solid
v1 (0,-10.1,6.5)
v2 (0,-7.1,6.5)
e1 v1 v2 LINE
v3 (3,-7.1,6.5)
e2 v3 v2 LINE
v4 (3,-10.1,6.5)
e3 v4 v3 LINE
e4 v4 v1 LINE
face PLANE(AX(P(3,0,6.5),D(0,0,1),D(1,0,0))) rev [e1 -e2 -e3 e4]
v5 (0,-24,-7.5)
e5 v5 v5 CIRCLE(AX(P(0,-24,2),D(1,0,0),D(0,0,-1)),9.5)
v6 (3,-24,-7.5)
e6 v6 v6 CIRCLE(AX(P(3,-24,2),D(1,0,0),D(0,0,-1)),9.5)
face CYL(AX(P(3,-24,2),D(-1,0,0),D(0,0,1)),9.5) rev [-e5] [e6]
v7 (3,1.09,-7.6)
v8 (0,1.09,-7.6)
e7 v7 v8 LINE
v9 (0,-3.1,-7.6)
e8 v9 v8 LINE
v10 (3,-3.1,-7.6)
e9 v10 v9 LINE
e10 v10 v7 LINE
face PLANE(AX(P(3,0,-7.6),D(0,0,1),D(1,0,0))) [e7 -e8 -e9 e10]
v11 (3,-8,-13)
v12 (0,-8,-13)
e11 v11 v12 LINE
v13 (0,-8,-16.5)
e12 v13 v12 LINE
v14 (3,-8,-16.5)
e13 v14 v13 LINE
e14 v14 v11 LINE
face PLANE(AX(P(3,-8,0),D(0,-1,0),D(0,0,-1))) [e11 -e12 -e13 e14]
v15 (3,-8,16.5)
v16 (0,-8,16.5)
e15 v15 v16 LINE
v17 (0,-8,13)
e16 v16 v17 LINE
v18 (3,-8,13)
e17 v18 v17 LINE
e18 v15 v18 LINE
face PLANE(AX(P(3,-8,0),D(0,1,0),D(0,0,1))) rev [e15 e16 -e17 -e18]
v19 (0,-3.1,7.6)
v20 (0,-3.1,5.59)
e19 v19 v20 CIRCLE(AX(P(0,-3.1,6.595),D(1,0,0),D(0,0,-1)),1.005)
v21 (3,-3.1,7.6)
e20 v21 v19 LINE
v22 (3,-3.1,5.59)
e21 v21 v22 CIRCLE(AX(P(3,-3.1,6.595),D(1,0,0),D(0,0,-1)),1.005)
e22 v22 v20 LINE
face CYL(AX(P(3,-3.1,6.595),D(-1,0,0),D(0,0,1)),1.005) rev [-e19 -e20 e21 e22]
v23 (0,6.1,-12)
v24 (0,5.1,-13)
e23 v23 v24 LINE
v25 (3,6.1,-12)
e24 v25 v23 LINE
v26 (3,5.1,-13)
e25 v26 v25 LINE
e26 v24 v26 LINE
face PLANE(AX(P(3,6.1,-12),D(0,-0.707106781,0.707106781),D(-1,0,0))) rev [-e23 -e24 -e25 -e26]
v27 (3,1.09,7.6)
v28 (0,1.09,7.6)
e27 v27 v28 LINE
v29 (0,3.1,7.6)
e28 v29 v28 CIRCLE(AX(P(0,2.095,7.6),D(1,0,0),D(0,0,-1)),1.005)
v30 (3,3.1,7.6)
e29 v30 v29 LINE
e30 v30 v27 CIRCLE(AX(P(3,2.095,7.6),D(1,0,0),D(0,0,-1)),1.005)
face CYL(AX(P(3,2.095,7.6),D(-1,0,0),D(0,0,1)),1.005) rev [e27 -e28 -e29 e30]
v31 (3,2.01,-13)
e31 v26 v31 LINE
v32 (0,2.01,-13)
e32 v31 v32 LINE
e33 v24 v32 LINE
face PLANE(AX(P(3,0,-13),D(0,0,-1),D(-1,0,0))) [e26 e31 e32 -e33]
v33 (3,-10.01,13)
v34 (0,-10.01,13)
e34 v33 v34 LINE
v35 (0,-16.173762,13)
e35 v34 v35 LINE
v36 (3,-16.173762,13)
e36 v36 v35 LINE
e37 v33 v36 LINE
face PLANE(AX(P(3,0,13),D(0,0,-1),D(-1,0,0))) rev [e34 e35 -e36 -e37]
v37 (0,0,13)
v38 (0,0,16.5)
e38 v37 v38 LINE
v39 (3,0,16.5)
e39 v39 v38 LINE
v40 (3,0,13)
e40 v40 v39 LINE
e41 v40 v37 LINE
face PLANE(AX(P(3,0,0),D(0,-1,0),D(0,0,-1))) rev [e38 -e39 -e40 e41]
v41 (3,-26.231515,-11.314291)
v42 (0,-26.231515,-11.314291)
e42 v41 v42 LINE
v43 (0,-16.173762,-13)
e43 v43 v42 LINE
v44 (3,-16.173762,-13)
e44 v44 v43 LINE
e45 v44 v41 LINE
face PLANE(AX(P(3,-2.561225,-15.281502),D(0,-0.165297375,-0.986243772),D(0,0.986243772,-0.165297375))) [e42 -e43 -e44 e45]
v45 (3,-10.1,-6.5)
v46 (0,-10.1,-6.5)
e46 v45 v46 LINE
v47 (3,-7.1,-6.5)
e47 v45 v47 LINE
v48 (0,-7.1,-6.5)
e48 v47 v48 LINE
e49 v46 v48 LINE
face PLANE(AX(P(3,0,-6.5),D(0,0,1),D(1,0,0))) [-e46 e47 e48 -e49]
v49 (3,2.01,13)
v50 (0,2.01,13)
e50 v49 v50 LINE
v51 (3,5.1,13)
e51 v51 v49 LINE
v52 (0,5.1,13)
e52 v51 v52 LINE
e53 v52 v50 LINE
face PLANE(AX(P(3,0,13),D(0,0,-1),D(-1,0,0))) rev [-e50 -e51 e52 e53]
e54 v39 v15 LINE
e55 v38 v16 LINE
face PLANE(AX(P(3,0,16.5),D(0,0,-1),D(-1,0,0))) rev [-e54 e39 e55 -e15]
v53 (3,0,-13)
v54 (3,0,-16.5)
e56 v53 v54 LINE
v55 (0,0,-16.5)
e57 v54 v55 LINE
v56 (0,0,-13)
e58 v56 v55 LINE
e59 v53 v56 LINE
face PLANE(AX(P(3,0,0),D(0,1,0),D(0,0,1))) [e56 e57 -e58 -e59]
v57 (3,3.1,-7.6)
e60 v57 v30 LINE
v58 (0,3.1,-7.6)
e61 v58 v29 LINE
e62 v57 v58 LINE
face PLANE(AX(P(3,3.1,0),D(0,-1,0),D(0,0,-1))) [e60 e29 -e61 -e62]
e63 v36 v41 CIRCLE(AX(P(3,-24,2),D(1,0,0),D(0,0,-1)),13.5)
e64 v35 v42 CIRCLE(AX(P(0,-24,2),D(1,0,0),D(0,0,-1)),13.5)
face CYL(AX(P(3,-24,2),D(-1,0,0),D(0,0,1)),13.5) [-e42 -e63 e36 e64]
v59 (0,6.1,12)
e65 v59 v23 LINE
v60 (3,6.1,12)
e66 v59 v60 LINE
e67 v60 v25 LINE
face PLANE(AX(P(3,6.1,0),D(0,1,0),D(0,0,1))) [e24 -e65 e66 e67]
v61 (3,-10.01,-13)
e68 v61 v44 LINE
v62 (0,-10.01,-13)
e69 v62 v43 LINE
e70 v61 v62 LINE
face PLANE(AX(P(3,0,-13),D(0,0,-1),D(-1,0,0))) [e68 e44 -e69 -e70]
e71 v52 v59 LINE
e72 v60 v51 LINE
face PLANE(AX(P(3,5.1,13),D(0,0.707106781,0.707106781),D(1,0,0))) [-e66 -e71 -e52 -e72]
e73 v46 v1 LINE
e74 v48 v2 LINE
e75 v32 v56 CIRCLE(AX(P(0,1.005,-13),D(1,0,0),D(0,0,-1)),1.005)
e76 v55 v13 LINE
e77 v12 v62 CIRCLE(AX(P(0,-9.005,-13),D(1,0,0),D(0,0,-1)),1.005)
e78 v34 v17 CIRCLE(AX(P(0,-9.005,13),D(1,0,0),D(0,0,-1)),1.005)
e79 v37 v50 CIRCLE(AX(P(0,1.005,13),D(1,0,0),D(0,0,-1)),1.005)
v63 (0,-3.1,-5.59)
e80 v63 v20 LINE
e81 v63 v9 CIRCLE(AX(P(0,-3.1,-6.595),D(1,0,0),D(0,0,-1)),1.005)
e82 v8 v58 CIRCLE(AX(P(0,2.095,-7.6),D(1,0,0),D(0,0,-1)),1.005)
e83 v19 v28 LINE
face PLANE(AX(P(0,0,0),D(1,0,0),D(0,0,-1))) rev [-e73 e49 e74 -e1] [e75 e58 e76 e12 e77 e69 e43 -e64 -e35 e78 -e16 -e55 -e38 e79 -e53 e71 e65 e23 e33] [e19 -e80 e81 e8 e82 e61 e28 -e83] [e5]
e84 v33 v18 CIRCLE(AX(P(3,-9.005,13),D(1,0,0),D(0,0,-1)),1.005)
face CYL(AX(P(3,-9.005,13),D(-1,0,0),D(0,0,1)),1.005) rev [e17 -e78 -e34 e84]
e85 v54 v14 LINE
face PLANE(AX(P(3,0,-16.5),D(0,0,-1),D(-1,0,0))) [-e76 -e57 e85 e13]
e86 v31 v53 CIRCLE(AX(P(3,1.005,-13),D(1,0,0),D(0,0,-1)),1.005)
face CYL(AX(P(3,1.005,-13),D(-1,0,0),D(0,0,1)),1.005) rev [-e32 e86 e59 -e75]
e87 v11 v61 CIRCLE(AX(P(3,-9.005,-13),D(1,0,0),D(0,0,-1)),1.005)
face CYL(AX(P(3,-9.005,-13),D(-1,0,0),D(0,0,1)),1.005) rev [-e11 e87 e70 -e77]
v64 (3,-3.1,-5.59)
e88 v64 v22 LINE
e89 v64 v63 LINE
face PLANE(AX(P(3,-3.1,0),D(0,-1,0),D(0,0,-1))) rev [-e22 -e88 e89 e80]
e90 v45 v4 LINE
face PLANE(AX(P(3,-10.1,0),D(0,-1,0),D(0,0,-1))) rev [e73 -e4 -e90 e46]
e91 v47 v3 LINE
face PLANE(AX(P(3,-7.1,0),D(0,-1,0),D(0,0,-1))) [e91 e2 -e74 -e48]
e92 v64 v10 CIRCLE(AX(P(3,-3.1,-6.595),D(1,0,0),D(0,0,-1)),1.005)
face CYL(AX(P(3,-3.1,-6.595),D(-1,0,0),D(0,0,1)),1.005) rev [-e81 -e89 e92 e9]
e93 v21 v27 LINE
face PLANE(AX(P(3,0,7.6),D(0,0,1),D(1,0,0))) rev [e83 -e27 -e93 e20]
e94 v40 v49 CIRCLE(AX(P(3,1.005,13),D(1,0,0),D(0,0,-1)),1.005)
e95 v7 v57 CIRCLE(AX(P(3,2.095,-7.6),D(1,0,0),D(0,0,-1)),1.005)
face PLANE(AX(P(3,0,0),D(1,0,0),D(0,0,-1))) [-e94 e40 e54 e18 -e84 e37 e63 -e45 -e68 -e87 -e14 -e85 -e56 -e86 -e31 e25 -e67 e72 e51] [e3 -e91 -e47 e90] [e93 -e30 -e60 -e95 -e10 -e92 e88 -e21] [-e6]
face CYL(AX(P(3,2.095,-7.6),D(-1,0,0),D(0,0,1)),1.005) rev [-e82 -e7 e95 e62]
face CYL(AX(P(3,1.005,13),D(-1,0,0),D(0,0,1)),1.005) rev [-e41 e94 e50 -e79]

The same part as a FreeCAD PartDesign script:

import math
import FreeCAD as App
import Part
import Sketcher

V = App.Vector
Q = App.Units.Quantity


def edges_at(feature, points):
    """Names of the edges that pass closest to the given points."""
    edges = feature.Shape.Edges
    near = lambda p: min(range(len(edges)), key=lambda i: edges[i].distToShape(Part.Vertex(*p))[0])
    return sorted({f"Edge{near(p) + 1}" for p in points})


def add_polygon(sketch, points):
    """Adds a closed chain of lines whose ends are joined by coincident constraints."""
    first, n = sketch.GeometryCount, len(points)
    for a, b in zip(points, points[1:] + points[:1]):
        sketch.addGeometry(Part.LineSegment(App.Vector(*a, 0), App.Vector(*b, 0)), False)
    for i in range(n):
        sketch.addConstraint(Sketcher.Constraint("Coincident", first + i, 2, first + (i + 1) % n, 1))

doc = App.newDocument("Part")
body = doc.addObject("PartDesign::Body", "Body")

sketch1 = doc.addObject("Sketcher::SketchObject", "Sketch")
body.addObject(sketch1)
sketch1.AttachmentSupport = (doc.YZ_Plane, [""])
sketch1.MapMode = "FlatFace"
sketch1.addGeometry(Part.LineSegment(V(6.1, -13, 0), V(6.1, 13, 0)), False)
sketch1.addGeometry(Part.LineSegment(V(6.1, 13, 0), V(2, 13, 0)), False)
sketch1.addGeometry(Part.ArcOfCircle(Part.Circle(V(1, 13, 0), V(0, 0, 1), 1), math.radians(-90), math.radians(0)), False)
sketch1.addGeometry(Part.ArcOfCircle(Part.Circle(V(1, 13, 0), V(0, 0, 1), 1), math.radians(180), math.radians(270)), False)
sketch1.addGeometry(Part.LineSegment(V(0, 13, 0), V(0, 16.5, 0)), False)
sketch1.addGeometry(Part.LineSegment(V(0, 16.5, 0), V(-8, 16.5, 0)), False)
sketch1.addGeometry(Part.LineSegment(V(-8, 16.5, 0), V(-8, 13, 0)), False)
sketch1.addGeometry(Part.ArcOfCircle(Part.Circle(V(-9, 13, 0), V(0, 0, 1), 1), math.radians(-90), math.radians(0)), False)
sketch1.addGeometry(Part.ArcOfCircle(Part.Circle(V(-9, 13, 0), V(0, 0, 1), 1), math.radians(180), math.radians(270)), False)
sketch1.addGeometry(Part.LineSegment(V(-10, 13, 0), V(-16.2, 13, 0)), False)
sketch1.addGeometry(Part.ArcOfCircle(Part.Circle(V(-24, 2, 0), V(0, 0, 1), 13.5), math.radians(55), math.radians(260)), False)
sketch1.addGeometry(Part.LineSegment(V(-26.2, -11.3, 0), V(-16.2, -13, 0)), False)
sketch1.addGeometry(Part.LineSegment(V(-16.2, -13, 0), V(-10, -13, 0)), False)
sketch1.addGeometry(Part.ArcOfCircle(Part.Circle(V(-9, -13, 0), V(0, 0, 1), 1), math.radians(0), math.radians(180)), False)
sketch1.addGeometry(Part.LineSegment(V(-8, -13, 0), V(-8, -16.5, 0)), False)
sketch1.addGeometry(Part.LineSegment(V(-8, -16.5, 0), V(0, -16.5, 0)), False)
sketch1.addGeometry(Part.LineSegment(V(0, -16.5, 0), V(0, -13, 0)), False)
sketch1.addGeometry(Part.ArcOfCircle(Part.Circle(V(1, -13, 0), V(0, 0, 1), 1), math.radians(0), math.radians(180)), False)
sketch1.addGeometry(Part.LineSegment(V(2, -13, 0), V(6.1, -13, 0)), False)
sketch1.addGeometry(Part.Circle(V(-24, 2, 0), V(0, 0, 1), 9.5), False)
add_polygon(sketch1, [(-10.1, -6.5), (-10.1, 6.5), (-7.1, 6.5), (-7.1, -6.5)])
sketch1.addGeometry(Part.ArcOfCircle(Part.Circle(V(-3.1, -6.6, 0), V(0, 0, 1), 1), math.radians(90), math.radians(270)), False)
sketch1.addGeometry(Part.LineSegment(V(-3.1, -5.6, 0), V(-3.1, 5.6, 0)), False)
sketch1.addGeometry(Part.ArcOfCircle(Part.Circle(V(-3.1, 6.6, 0), V(0, 0, 1), 1), math.radians(90), math.radians(270)), False)
sketch1.addGeometry(Part.LineSegment(V(-3.1, 7.6, 0), V(1.1, 7.6, 0)), False)
sketch1.addGeometry(Part.ArcOfCircle(Part.Circle(V(2.1, 7.6, 0), V(0, 0, 1), 1), math.radians(0), math.radians(180)), False)
sketch1.addGeometry(Part.LineSegment(V(3.1, 7.6, 0), V(3.1, -7.6, 0)), False)
sketch1.addGeometry(Part.ArcOfCircle(Part.Circle(V(2.1, -7.6, 0), V(0, 0, 1), 1), math.radians(-90), math.radians(0)), False)
sketch1.addGeometry(Part.ArcOfCircle(Part.Circle(V(2.1, -7.6, 0), V(0, 0, 1), 1), math.radians(180), math.radians(270)), False)
sketch1.addGeometry(Part.LineSegment(V(1.1, -7.6, 0), V(-3.1, -7.6, 0)), False)
sketch1.addConstraint([
    Sketcher.Constraint("Coincident", 0, 2, 1, 1),
    Sketcher.Constraint("Coincident", 1, 2, 2, 2),
    Sketcher.Constraint("Tangent", 2, 1, 3, 2),
    Sketcher.Constraint("Tangent", 3, 1, 4, 1),
    Sketcher.Constraint("Coincident", 4, 2, 5, 1),
    Sketcher.Constraint("Coincident", 5, 2, 6, 1),
    Sketcher.Constraint("Tangent", 6, 2, 7, 2),
    Sketcher.Constraint("Tangent", 7, 1, 8, 2),
    Sketcher.Constraint("Coincident", 8, 1, 9, 1),
    Sketcher.Constraint("Coincident", 9, 2, 10, 1),
    Sketcher.Constraint("Tangent", 10, 2, 11, 1),
    Sketcher.Constraint("Coincident", 11, 2, 12, 1),
    Sketcher.Constraint("Coincident", 12, 2, 13, 2),
    Sketcher.Constraint("Tangent", 13, 1, 14, 1),
    Sketcher.Constraint("Coincident", 14, 2, 15, 1),
    Sketcher.Constraint("Coincident", 15, 2, 16, 1),
    Sketcher.Constraint("Tangent", 16, 2, 17, 2),
    Sketcher.Constraint("Coincident", 17, 1, 18, 1),
    Sketcher.Constraint("Coincident", 18, 2, 0, 1),
    Sketcher.Constraint("Coincident", 24, 1, 25, 1),
    Sketcher.Constraint("Coincident", 25, 2, 26, 2),
    Sketcher.Constraint("Tangent", 26, 1, 27, 1),
    Sketcher.Constraint("Coincident", 27, 2, 28, 2),
    Sketcher.Constraint("Tangent", 28, 1, 29, 1),
    Sketcher.Constraint("Tangent", 29, 2, 30, 2),
    Sketcher.Constraint("Tangent", 30, 1, 31, 2),
    Sketcher.Constraint("Coincident", 31, 1, 32, 1),
    Sketcher.Constraint("Tangent", 32, 2, 24, 2),
    Sketcher.Constraint("Vertical", 0),
    Sketcher.Constraint("Horizontal", 1),
    Sketcher.Constraint("Vertical", 4),
    Sketcher.Constraint("Horizontal", 5),
    Sketcher.Constraint("Vertical", 6),
    Sketcher.Constraint("Horizontal", 9),
    Sketcher.Constraint("Horizontal", 12),
    Sketcher.Constraint("Vertical", 14),
    Sketcher.Constraint("Horizontal", 15),
    Sketcher.Constraint("Vertical", 16),
    Sketcher.Constraint("Horizontal", 18),
    Sketcher.Constraint("Vertical", 20),
    Sketcher.Constraint("Horizontal", 21),
    Sketcher.Constraint("Vertical", 22),
    Sketcher.Constraint("Horizontal", 23),
    Sketcher.Constraint("Vertical", 25),
    Sketcher.Constraint("Horizontal", 27),
    Sketcher.Constraint("Vertical", 29),
    Sketcher.Constraint("Horizontal", 32),
    Sketcher.Constraint("Coincident", 19, 3, 10, 3),
    Sketcher.Constraint("Equal", 2, 3),
    Sketcher.Constraint("Equal", 3, 7),
    Sketcher.Constraint("Equal", 7, 8),
    Sketcher.Constraint("Equal", 8, 13),
    Sketcher.Constraint("Equal", 13, 17),
    Sketcher.Constraint("Equal", 17, 24),
    Sketcher.Constraint("Equal", 24, 26),
    Sketcher.Constraint("Equal", 26, 28),
    Sketcher.Constraint("Equal", 28, 30),
    Sketcher.Constraint("Equal", 30, 31),
    Sketcher.Constraint("Symmetric", 4, 2, 15, 2, -1, 1),
    Sketcher.Constraint("Symmetric", 26, 1, 29, 2, -1, 1),
    Sketcher.Constraint("Symmetric", 28, 1, 32, 2, -1, 1),
    Sketcher.Constraint("Symmetric", 7, 3, 13, 3, -1),
    Sketcher.Constraint("Symmetric", 2, 3, 17, 3, -1),
    Sketcher.Constraint("Symmetric", 9, 2, 11, 2, -1),
    Sketcher.Constraint("Horizontal", 3, 3, 7, 3),
    Sketcher.Constraint("Horizontal", 8, 3, 0, 2),
    Sketcher.Constraint("Horizontal", 6, 2, 8, 1),
    Sketcher.Constraint("Horizontal", 16, 2, 17, 1),
    Sketcher.Constraint("Horizontal", 28, 3, 26, 1),
    Sketcher.Constraint("Vertical", 17, 3, 2, 1),
    Sketcher.Constraint("Vertical", 13, 3, 7, 1),
    Sketcher.Constraint("Vertical", 26, 3, 24, 1),
    Sketcher.Constraint("Vertical", 31, 3, 30, 1),
    Sketcher.Constraint("Diameter", 19, Q("19 mm")),
    Sketcher.Constraint("Radius", 10, Q("13.5 mm")),
    Sketcher.Constraint("DistanceX", 5, 2, 5, 1, Q("8 mm")),
    Sketcher.Constraint("DistanceX", 21, 1, 21, 2, Q("3 mm")),
    Sketcher.Constraint("DistanceY", 0, 1, 0, 2, Q("26 mm")),
    Sketcher.Constraint("DistanceY", 20, 1, 20, 2, Q("13 mm")),
    Sketcher.Constraint("DistanceY", 4, 1, 4, 2, Q("3.5 mm")),
    Sketcher.Constraint("DistanceY", 29, 2, 29, 1, Q("15.2 mm")),
    Sketcher.Constraint("DistanceX", 10, 3, -1, 1, Q("24 mm")),
    Sketcher.Constraint("DistanceY", -1, 1, 10, 3, Q("2 mm")),
    Sketcher.Constraint("Radius", 2, Q("1.005 mm")),
    Sketcher.Constraint("DistanceX", 21, 2, 26, 3, Q("4 mm")),
    Sketcher.Constraint("DistanceX", 29, 2, 18, 2, Q("3 mm")),
    Sketcher.Constraint("DistanceX", 1, 2, 1, 1, Q("4.09 mm")),
    Sketcher.Constraint("DistanceY", -1, 1, 20, 2, Q("6.5 mm")),
])
pad1 = doc.addObject("PartDesign::Pad", "Pad")
body.addObject(pad1)
pad1.Profile = sketch1
pad1.Length = 3
doc.recompute()

chamfer = doc.addObject("PartDesign::Chamfer", "Chamfer")
body.addObject(chamfer)
chamfer.Base = (pad1, edges_at(pad1, [(1.5, 6.1, 13), (1.5, 6.1, -13)]))
chamfer.Size = 1

doc.recompute()
